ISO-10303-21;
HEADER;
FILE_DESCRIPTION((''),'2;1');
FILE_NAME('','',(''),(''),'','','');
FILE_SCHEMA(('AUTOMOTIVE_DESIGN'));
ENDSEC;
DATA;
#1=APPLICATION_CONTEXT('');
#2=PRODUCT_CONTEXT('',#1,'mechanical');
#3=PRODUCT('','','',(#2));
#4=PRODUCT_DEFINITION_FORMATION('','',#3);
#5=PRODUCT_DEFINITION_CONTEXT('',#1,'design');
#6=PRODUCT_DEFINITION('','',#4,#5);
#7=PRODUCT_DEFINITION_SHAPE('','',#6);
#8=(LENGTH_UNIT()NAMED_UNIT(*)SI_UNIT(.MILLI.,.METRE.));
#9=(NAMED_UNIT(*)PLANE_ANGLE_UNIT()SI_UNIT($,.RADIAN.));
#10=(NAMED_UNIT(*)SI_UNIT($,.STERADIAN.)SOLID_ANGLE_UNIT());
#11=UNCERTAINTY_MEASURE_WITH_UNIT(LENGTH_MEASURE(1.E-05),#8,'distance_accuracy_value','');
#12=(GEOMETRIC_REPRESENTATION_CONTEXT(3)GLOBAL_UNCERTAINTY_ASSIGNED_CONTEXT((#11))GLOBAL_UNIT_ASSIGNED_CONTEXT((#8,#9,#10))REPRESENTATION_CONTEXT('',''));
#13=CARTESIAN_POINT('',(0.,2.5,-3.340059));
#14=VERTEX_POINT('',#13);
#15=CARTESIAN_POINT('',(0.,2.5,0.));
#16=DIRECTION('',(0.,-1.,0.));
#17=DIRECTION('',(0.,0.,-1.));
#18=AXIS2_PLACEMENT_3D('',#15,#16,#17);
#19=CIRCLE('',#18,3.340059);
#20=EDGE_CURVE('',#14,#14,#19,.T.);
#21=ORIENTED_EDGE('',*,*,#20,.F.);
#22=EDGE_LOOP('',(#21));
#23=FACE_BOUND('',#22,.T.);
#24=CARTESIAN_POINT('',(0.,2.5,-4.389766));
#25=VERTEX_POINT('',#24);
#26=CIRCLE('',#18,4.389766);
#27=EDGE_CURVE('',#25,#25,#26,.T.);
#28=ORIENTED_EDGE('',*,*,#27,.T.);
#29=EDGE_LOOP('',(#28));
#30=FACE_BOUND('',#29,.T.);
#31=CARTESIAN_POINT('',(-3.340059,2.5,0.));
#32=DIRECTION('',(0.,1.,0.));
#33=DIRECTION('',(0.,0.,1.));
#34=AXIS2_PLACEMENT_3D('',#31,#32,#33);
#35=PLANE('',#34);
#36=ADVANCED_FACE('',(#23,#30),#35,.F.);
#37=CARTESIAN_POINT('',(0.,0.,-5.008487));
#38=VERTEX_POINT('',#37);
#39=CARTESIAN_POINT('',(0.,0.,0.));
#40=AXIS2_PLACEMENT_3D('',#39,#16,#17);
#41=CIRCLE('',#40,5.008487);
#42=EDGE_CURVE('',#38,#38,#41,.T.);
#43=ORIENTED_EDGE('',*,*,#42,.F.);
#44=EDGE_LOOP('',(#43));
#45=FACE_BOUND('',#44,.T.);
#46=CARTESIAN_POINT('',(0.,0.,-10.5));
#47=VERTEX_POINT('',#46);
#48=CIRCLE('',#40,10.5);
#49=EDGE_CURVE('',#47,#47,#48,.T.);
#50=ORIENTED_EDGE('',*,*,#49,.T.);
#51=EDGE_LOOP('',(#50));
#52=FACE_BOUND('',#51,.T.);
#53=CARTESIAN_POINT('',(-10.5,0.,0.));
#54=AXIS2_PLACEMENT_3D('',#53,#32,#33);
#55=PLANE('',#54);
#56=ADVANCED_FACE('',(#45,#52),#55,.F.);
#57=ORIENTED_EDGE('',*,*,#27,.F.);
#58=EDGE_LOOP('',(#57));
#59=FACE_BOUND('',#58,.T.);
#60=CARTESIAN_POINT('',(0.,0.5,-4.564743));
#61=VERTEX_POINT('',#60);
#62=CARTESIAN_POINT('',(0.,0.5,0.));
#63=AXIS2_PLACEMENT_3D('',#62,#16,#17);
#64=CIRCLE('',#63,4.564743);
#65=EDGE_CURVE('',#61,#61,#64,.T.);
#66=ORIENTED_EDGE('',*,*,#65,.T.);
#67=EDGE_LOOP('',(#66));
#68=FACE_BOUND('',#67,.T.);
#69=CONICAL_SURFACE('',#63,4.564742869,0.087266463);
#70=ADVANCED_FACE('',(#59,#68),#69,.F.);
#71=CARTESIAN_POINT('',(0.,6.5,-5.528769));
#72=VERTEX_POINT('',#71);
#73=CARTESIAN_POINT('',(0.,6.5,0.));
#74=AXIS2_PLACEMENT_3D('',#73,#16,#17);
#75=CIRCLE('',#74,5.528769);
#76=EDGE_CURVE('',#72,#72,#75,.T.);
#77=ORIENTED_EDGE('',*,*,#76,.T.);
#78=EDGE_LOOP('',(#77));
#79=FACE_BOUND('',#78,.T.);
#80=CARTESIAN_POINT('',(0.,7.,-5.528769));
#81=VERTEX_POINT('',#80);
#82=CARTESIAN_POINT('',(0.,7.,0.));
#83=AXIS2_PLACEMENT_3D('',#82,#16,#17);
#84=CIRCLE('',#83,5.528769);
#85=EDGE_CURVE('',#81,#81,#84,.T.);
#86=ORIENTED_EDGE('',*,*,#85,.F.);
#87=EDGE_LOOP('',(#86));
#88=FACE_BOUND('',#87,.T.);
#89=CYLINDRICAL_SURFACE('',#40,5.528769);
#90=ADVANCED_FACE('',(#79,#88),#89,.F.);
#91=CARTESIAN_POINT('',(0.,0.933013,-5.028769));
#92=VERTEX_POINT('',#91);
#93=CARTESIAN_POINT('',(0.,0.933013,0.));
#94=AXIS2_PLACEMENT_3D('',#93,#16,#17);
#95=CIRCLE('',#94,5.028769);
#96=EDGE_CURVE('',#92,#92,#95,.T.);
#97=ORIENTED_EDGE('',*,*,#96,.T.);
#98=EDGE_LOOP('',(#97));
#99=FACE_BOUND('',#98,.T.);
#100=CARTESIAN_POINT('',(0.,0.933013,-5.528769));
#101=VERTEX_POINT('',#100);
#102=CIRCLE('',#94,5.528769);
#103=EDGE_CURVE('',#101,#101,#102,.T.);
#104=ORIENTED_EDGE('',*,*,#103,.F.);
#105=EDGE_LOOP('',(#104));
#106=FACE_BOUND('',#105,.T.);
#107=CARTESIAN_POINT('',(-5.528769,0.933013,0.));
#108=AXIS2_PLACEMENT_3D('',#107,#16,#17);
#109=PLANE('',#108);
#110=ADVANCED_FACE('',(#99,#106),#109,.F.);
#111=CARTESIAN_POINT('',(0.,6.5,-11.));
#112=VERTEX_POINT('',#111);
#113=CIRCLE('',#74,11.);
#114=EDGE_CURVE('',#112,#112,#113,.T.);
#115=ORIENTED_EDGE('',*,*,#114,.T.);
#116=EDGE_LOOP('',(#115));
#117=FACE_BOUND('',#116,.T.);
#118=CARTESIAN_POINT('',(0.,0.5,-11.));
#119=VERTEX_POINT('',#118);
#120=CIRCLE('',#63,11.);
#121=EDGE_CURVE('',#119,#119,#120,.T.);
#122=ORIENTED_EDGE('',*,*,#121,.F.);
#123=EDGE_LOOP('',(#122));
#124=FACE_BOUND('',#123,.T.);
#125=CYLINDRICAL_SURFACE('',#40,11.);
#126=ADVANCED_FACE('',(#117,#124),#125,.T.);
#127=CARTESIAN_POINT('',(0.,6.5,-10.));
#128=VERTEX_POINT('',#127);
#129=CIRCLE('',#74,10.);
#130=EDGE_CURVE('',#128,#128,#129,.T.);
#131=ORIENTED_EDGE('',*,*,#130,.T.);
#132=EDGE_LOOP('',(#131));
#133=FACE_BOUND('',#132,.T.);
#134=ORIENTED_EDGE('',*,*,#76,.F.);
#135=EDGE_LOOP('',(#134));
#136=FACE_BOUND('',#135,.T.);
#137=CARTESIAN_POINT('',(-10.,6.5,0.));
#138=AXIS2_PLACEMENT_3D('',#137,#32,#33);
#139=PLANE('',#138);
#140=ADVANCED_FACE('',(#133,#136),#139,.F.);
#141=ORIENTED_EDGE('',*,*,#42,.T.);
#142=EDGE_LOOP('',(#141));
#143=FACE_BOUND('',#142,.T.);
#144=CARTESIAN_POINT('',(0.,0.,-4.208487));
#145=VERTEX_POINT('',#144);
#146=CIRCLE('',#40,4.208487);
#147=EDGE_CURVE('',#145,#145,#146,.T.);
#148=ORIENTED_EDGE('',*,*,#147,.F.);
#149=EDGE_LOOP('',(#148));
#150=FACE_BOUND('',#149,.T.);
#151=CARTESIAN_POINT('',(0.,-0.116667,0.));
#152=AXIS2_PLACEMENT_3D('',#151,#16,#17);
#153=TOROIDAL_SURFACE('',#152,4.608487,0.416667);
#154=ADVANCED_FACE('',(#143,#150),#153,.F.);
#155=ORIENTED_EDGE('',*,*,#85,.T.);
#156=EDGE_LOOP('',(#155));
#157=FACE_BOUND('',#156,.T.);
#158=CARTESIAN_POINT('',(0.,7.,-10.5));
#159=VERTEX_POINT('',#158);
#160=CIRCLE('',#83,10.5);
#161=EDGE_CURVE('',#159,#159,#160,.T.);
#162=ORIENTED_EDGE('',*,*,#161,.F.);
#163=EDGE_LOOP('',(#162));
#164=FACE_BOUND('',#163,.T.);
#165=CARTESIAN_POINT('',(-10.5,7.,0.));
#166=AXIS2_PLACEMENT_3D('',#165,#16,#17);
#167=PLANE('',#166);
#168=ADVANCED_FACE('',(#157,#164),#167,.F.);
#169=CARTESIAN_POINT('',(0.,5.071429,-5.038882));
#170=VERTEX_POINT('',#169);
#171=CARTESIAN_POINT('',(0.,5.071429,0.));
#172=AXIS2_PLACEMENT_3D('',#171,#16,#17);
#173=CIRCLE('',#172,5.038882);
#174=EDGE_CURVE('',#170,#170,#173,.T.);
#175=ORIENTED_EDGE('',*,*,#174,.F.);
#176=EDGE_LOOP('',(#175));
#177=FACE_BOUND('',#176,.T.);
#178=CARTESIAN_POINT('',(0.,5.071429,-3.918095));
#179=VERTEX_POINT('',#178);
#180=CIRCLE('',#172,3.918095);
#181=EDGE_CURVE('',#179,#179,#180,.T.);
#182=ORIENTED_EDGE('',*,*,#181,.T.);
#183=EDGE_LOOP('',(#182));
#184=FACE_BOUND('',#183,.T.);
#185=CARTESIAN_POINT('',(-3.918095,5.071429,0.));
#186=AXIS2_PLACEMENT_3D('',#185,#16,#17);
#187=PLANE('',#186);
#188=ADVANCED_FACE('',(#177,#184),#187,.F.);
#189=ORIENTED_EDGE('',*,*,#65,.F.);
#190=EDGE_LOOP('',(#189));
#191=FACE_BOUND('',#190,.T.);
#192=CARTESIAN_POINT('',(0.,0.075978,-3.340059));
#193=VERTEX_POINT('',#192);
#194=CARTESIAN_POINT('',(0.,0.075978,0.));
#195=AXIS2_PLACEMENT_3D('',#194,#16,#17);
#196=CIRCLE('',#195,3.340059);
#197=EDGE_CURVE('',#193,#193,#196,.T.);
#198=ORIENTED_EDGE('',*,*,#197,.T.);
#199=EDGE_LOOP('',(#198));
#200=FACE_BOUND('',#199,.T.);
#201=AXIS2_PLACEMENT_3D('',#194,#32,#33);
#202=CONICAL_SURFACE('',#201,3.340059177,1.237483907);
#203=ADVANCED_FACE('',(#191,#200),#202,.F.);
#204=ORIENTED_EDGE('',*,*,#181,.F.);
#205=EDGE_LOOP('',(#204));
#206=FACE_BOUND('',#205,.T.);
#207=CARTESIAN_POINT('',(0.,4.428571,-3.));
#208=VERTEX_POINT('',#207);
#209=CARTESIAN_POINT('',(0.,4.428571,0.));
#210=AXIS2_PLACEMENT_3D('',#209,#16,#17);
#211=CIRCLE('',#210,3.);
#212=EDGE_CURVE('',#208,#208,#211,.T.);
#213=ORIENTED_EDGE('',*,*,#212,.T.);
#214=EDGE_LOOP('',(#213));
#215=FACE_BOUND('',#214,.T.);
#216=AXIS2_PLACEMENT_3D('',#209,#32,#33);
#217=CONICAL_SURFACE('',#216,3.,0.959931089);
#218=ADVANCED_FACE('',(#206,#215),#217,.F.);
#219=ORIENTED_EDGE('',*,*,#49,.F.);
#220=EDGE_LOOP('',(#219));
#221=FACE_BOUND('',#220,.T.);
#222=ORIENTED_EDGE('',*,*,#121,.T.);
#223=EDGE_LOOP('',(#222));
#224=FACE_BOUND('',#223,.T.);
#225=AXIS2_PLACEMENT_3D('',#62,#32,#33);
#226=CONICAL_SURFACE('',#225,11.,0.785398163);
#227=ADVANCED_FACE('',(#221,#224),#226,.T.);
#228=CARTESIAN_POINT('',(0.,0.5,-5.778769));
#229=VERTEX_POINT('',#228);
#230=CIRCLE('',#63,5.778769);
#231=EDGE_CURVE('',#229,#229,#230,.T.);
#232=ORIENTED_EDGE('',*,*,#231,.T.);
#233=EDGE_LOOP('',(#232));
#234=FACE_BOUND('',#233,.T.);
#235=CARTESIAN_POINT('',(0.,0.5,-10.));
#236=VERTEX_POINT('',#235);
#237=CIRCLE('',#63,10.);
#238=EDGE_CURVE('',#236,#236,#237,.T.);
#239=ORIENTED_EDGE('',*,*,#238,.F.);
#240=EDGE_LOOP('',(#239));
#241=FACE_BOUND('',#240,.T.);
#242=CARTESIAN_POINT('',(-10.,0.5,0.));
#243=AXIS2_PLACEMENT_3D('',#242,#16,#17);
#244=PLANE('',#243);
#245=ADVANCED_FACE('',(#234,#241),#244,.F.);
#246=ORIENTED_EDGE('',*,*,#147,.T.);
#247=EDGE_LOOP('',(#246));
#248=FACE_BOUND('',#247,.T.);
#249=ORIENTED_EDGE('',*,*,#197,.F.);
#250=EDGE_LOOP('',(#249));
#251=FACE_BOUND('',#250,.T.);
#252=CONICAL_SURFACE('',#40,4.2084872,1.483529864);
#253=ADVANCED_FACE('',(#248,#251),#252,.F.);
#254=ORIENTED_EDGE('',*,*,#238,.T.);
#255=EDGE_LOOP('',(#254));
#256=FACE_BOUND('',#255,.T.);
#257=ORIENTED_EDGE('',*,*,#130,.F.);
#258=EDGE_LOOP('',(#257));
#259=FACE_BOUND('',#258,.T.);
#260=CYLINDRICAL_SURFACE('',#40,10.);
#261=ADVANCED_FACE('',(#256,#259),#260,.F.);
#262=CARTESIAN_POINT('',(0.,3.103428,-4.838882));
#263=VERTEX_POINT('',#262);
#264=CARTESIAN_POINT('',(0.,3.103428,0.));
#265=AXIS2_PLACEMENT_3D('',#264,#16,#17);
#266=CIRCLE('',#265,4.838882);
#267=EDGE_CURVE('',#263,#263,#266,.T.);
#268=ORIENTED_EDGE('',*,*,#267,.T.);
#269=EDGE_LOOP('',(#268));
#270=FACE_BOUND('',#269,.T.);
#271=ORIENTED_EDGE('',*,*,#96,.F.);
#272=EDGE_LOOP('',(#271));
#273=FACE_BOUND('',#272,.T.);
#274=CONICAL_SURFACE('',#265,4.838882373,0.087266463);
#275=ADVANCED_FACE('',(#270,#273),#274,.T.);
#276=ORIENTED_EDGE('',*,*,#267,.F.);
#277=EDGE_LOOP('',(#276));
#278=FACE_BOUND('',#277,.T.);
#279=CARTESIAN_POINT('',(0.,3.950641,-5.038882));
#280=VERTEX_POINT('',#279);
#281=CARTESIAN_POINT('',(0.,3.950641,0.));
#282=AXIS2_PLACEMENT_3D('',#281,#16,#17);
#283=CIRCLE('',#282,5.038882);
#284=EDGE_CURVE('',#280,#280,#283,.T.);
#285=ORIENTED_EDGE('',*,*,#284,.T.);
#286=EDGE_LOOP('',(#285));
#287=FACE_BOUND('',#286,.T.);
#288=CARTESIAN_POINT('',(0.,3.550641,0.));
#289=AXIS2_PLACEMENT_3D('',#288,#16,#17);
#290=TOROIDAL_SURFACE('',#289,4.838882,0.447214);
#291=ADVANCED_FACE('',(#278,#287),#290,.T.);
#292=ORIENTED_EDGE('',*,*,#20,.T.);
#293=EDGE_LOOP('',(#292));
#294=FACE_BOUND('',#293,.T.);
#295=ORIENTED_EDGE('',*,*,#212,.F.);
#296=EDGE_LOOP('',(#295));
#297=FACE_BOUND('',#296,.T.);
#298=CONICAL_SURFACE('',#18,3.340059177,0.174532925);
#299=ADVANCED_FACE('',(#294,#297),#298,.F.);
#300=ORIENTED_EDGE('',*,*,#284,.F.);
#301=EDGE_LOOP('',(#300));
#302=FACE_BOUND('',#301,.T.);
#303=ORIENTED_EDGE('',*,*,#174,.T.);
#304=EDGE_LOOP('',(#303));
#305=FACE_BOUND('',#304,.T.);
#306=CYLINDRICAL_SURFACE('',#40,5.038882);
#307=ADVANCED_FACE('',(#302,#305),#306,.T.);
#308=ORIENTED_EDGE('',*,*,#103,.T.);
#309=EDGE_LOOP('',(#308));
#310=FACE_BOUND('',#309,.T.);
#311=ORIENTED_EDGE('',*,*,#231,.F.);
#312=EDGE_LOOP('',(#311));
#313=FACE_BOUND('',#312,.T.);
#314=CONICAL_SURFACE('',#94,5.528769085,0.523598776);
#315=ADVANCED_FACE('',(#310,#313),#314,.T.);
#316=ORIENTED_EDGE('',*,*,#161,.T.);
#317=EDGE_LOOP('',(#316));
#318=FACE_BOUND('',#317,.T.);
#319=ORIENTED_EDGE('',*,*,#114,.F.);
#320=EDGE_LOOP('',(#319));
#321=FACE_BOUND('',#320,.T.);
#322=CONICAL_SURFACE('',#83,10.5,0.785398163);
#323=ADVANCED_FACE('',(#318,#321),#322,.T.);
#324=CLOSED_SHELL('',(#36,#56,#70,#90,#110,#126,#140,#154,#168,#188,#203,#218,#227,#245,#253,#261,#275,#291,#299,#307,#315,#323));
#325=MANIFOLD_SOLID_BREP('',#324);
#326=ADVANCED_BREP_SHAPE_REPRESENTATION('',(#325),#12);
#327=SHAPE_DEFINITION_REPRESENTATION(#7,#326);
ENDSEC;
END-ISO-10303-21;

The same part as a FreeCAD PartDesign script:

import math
import FreeCAD as App
import Part
import Sketcher

V = App.Vector
Q = App.Units.Quantity

doc = App.newDocument("Part")
body = doc.addObject("PartDesign::Body", "Body")

# Sketch on XY plane
sketch1 = body.newObject("Sketcher::SketchObject", "Sketch")
sketch1.AttachmentSupport = (doc.getObject("XY_Plane"), [""])
sketch1.MapMode = "FlatFace"
sketch1.addGeometry([
    Part.LineSegment(V(-4.84, 3.1, 0), V(-5.03, 0.93, 0)),  # 0
    Part.LineSegment(V(-5.03, 0.93, 0), V(-5.53, 0.93, 0)),  # 1
    Part.LineSegment(V(-5.53, 0.93, 0), V(-5.78, 0.5, 0)),  # 2
    Part.LineSegment(V(-5.78, 0.5, 0), V(-10, 0.5, 0)),  # 3
    Part.LineSegment(V(-10, 0.5, 0), V(-10, 6.5, 0)),  # 4
    Part.LineSegment(V(-10, 6.5, 0), V(-5.53, 6.5, 0)),  # 5
    Part.LineSegment(V(-5.53, 6.5, 0), V(-5.53, 7, 0)),  # 6
    Part.LineSegment(V(-5.53, 7, 0), V(-10.5, 7, 0)),  # 7
    Part.LineSegment(V(-10.5, 7, 0), V(-11, 6.5, 0)),  # 8
    Part.LineSegment(V(-11, 6.5, 0), V(-11, 0.5, 0)),  # 9
    Part.LineSegment(V(-11, 0.5, 0), V(-10.5, 0, 0)),  # 10
    Part.LineSegment(V(-10.5, 0, 0), V(-5.01, 0, 0)),  # 11
    Part.ArcOfCircle(Part.Circle(V(-4.61, -0.12, 0), V(0, 0, 1), 0.42), math.radians(16), math.radians(164)),  # 12
    Part.LineSegment(V(-4.21, 0, 0), V(-3.34, 0.08, 0)),  # 13
    Part.LineSegment(V(-3.34, 0.08, 0), V(-4.56, 0.5, 0)),  # 14
    Part.LineSegment(V(-4.56, 0.5, 0), V(-4.39, 2.5, 0)),  # 15
    Part.LineSegment(V(-4.39, 2.5, 0), V(-3.34, 2.5, 0)),  # 16
    Part.LineSegment(V(-3.34, 2.5, 0), V(-3, 4.43, 0)),  # 17
    Part.LineSegment(V(-3, 4.43, 0), V(-3.92, 5.07, 0)),  # 18
    Part.LineSegment(V(-3.92, 5.07, 0), V(-5.04, 5.07, 0)),  # 19
    Part.LineSegment(V(-5.04, 5.07, 0), V(-5.04, 3.95, 0)),  # 20
    Part.ArcOfCircle(Part.Circle(V(-4.84, 3.55, 0), V(0, 0, 1), 0.45), math.radians(117), math.radians(270)),  # 21
], False)
sketch1.addConstraint([
    Sketcher.Constraint("Coincident", 0, 2, 1, 1),
    Sketcher.Constraint("Coincident", 1, 2, 2, 1),
    Sketcher.Constraint("Coincident", 2, 2, 3, 1),
    Sketcher.Constraint("Coincident", 3, 2, 4, 1),
    Sketcher.Constraint("Coincident", 4, 2, 5, 1),
    Sketcher.Constraint("Coincident", 5, 2, 6, 1),
    Sketcher.Constraint("Coincident", 6, 2, 7, 1),
    Sketcher.Constraint("Coincident", 7, 2, 8, 1),
    Sketcher.Constraint("Coincident", 8, 2, 9, 1),
    Sketcher.Constraint("Coincident", 9, 2, 10, 1),
    Sketcher.Constraint("Coincident", 10, 2, 11, 1),
    Sketcher.Constraint("Coincident", 11, 2, 12, 2),
    Sketcher.Constraint("Coincident", 12, 1, 13, 1),
    Sketcher.Constraint("Coincident", 13, 2, 14, 1),
    Sketcher.Constraint("Coincident", 14, 2, 15, 1),
    Sketcher.Constraint("Coincident", 15, 2, 16, 1),
    Sketcher.Constraint("Coincident", 16, 2, 17, 1),
    Sketcher.Constraint("Coincident", 17, 2, 18, 1),
    Sketcher.Constraint("Coincident", 18, 2, 19, 1),
    Sketcher.Constraint("Coincident", 19, 2, 20, 1),
    Sketcher.Constraint("Coincident", 20, 2, 21, 1),
    Sketcher.Constraint("Coincident", 21, 2, 0, 1),
    Sketcher.Constraint("Horizontal", 1),
    Sketcher.Constraint("Horizontal", 3),
    Sketcher.Constraint("Vertical", 4),
    Sketcher.Constraint("Horizontal", 5),
    Sketcher.Constraint("Vertical", 6),
    Sketcher.Constraint("Horizontal", 7),
    Sketcher.Constraint("Vertical", 9),
    Sketcher.Constraint("Horizontal", 11),
    Sketcher.Constraint("Horizontal", 16),
    Sketcher.Constraint("Horizontal", 19),
    Sketcher.Constraint("Vertical", 20),
    Sketcher.Constraint("PointOnObject", 10, 2, -1),
    Sketcher.Constraint("PointOnObject", 12, 1, -1),
    Sketcher.Constraint("Perpendicular", 8, 10),
    Sketcher.Constraint("Parallel", 0, 15),
    Sketcher.Constraint("Horizontal", 5, 2, 8, 2),
    Sketcher.Constraint("Horizontal", 3, 2, 9, 2),
    Sketcher.Constraint("Horizontal", 9, 2, 14, 2),
    Sketcher.Constraint("Vertical", 1, 2, 5, 2),
    Sketcher.Constraint("Vertical", 7, 2, 10, 2),
    Sketcher.Constraint("Vertical", 13, 2, 16, 2),
    Sketcher.Constraint("Equal", 1, 6),
    Sketcher.Constraint("Equal", 19, 20),
    Sketcher.Constraint("Equal", 8, 10),
    Sketcher.Constraint("DistanceY", 4, 1, 4, 2, 6.0),
    Sketcher.Constraint("Angle", 0, Q("-95 deg")),
    Sketcher.Constraint("Angle", 2, Q("-120 deg")),
    Sketcher.Constraint("Angle", 13, Q("5 deg")),
    Sketcher.Constraint("Angle", 17, Q("80 deg")),
    Sketcher.Constraint("Angle", 18, Q("145 deg")),
    Sketcher.Constraint("DistanceX", 1, 2, 1, 1, 0.5),
    Sketcher.Constraint("DistanceX", 3, 2, -1, 1, 10.0),
    Sketcher.Constraint("DistanceX", 8, 2, -1, 1, 11.0),
    Sketcher.Constraint("DistanceX", 17, 2, -1, 1, 3.0),
    Sketcher.Constraint("DistanceY", 14, 2, 15, 2, 2.0),
    Sketcher.Constraint("Distance", 2, 0.5),
    Sketcher.Constraint("DistanceX", 11, 2, 12, 3, 0.4),
    Sketcher.Constraint("DistanceX", 19, 2, 21, 3, 0.2),
    Sketcher.Constraint("DistanceY", 21, 3, 20, 2, 0.4),
    Sketcher.Constraint("DistanceX", 20, 2, 21, 2, 0.2),
    Sketcher.Constraint("Radius", 12, 0.416667),
    Sketcher.Constraint("DistanceY", 21, 2, 19, 2, 1.968001),
    Sketcher.Constraint("DistanceX", 3, 2, 3, 1, 4.221231),
    Sketcher.Constraint("Distance", 14, 1.296011),
    Sketcher.Constraint("DistanceX", 11, 1, 11, 2, 5.491513),
    Sketcher.Constraint("DistanceY", -1, 1, 21, 3, 3.550641),
])
revolution = body.newObject("PartDesign::Revolution", "Revolution")
revolution.Profile = sketch1
revolution.ReferenceAxis = (sketch1, ["V_Axis"])
revolution.Angle = 360

doc.recompute()
